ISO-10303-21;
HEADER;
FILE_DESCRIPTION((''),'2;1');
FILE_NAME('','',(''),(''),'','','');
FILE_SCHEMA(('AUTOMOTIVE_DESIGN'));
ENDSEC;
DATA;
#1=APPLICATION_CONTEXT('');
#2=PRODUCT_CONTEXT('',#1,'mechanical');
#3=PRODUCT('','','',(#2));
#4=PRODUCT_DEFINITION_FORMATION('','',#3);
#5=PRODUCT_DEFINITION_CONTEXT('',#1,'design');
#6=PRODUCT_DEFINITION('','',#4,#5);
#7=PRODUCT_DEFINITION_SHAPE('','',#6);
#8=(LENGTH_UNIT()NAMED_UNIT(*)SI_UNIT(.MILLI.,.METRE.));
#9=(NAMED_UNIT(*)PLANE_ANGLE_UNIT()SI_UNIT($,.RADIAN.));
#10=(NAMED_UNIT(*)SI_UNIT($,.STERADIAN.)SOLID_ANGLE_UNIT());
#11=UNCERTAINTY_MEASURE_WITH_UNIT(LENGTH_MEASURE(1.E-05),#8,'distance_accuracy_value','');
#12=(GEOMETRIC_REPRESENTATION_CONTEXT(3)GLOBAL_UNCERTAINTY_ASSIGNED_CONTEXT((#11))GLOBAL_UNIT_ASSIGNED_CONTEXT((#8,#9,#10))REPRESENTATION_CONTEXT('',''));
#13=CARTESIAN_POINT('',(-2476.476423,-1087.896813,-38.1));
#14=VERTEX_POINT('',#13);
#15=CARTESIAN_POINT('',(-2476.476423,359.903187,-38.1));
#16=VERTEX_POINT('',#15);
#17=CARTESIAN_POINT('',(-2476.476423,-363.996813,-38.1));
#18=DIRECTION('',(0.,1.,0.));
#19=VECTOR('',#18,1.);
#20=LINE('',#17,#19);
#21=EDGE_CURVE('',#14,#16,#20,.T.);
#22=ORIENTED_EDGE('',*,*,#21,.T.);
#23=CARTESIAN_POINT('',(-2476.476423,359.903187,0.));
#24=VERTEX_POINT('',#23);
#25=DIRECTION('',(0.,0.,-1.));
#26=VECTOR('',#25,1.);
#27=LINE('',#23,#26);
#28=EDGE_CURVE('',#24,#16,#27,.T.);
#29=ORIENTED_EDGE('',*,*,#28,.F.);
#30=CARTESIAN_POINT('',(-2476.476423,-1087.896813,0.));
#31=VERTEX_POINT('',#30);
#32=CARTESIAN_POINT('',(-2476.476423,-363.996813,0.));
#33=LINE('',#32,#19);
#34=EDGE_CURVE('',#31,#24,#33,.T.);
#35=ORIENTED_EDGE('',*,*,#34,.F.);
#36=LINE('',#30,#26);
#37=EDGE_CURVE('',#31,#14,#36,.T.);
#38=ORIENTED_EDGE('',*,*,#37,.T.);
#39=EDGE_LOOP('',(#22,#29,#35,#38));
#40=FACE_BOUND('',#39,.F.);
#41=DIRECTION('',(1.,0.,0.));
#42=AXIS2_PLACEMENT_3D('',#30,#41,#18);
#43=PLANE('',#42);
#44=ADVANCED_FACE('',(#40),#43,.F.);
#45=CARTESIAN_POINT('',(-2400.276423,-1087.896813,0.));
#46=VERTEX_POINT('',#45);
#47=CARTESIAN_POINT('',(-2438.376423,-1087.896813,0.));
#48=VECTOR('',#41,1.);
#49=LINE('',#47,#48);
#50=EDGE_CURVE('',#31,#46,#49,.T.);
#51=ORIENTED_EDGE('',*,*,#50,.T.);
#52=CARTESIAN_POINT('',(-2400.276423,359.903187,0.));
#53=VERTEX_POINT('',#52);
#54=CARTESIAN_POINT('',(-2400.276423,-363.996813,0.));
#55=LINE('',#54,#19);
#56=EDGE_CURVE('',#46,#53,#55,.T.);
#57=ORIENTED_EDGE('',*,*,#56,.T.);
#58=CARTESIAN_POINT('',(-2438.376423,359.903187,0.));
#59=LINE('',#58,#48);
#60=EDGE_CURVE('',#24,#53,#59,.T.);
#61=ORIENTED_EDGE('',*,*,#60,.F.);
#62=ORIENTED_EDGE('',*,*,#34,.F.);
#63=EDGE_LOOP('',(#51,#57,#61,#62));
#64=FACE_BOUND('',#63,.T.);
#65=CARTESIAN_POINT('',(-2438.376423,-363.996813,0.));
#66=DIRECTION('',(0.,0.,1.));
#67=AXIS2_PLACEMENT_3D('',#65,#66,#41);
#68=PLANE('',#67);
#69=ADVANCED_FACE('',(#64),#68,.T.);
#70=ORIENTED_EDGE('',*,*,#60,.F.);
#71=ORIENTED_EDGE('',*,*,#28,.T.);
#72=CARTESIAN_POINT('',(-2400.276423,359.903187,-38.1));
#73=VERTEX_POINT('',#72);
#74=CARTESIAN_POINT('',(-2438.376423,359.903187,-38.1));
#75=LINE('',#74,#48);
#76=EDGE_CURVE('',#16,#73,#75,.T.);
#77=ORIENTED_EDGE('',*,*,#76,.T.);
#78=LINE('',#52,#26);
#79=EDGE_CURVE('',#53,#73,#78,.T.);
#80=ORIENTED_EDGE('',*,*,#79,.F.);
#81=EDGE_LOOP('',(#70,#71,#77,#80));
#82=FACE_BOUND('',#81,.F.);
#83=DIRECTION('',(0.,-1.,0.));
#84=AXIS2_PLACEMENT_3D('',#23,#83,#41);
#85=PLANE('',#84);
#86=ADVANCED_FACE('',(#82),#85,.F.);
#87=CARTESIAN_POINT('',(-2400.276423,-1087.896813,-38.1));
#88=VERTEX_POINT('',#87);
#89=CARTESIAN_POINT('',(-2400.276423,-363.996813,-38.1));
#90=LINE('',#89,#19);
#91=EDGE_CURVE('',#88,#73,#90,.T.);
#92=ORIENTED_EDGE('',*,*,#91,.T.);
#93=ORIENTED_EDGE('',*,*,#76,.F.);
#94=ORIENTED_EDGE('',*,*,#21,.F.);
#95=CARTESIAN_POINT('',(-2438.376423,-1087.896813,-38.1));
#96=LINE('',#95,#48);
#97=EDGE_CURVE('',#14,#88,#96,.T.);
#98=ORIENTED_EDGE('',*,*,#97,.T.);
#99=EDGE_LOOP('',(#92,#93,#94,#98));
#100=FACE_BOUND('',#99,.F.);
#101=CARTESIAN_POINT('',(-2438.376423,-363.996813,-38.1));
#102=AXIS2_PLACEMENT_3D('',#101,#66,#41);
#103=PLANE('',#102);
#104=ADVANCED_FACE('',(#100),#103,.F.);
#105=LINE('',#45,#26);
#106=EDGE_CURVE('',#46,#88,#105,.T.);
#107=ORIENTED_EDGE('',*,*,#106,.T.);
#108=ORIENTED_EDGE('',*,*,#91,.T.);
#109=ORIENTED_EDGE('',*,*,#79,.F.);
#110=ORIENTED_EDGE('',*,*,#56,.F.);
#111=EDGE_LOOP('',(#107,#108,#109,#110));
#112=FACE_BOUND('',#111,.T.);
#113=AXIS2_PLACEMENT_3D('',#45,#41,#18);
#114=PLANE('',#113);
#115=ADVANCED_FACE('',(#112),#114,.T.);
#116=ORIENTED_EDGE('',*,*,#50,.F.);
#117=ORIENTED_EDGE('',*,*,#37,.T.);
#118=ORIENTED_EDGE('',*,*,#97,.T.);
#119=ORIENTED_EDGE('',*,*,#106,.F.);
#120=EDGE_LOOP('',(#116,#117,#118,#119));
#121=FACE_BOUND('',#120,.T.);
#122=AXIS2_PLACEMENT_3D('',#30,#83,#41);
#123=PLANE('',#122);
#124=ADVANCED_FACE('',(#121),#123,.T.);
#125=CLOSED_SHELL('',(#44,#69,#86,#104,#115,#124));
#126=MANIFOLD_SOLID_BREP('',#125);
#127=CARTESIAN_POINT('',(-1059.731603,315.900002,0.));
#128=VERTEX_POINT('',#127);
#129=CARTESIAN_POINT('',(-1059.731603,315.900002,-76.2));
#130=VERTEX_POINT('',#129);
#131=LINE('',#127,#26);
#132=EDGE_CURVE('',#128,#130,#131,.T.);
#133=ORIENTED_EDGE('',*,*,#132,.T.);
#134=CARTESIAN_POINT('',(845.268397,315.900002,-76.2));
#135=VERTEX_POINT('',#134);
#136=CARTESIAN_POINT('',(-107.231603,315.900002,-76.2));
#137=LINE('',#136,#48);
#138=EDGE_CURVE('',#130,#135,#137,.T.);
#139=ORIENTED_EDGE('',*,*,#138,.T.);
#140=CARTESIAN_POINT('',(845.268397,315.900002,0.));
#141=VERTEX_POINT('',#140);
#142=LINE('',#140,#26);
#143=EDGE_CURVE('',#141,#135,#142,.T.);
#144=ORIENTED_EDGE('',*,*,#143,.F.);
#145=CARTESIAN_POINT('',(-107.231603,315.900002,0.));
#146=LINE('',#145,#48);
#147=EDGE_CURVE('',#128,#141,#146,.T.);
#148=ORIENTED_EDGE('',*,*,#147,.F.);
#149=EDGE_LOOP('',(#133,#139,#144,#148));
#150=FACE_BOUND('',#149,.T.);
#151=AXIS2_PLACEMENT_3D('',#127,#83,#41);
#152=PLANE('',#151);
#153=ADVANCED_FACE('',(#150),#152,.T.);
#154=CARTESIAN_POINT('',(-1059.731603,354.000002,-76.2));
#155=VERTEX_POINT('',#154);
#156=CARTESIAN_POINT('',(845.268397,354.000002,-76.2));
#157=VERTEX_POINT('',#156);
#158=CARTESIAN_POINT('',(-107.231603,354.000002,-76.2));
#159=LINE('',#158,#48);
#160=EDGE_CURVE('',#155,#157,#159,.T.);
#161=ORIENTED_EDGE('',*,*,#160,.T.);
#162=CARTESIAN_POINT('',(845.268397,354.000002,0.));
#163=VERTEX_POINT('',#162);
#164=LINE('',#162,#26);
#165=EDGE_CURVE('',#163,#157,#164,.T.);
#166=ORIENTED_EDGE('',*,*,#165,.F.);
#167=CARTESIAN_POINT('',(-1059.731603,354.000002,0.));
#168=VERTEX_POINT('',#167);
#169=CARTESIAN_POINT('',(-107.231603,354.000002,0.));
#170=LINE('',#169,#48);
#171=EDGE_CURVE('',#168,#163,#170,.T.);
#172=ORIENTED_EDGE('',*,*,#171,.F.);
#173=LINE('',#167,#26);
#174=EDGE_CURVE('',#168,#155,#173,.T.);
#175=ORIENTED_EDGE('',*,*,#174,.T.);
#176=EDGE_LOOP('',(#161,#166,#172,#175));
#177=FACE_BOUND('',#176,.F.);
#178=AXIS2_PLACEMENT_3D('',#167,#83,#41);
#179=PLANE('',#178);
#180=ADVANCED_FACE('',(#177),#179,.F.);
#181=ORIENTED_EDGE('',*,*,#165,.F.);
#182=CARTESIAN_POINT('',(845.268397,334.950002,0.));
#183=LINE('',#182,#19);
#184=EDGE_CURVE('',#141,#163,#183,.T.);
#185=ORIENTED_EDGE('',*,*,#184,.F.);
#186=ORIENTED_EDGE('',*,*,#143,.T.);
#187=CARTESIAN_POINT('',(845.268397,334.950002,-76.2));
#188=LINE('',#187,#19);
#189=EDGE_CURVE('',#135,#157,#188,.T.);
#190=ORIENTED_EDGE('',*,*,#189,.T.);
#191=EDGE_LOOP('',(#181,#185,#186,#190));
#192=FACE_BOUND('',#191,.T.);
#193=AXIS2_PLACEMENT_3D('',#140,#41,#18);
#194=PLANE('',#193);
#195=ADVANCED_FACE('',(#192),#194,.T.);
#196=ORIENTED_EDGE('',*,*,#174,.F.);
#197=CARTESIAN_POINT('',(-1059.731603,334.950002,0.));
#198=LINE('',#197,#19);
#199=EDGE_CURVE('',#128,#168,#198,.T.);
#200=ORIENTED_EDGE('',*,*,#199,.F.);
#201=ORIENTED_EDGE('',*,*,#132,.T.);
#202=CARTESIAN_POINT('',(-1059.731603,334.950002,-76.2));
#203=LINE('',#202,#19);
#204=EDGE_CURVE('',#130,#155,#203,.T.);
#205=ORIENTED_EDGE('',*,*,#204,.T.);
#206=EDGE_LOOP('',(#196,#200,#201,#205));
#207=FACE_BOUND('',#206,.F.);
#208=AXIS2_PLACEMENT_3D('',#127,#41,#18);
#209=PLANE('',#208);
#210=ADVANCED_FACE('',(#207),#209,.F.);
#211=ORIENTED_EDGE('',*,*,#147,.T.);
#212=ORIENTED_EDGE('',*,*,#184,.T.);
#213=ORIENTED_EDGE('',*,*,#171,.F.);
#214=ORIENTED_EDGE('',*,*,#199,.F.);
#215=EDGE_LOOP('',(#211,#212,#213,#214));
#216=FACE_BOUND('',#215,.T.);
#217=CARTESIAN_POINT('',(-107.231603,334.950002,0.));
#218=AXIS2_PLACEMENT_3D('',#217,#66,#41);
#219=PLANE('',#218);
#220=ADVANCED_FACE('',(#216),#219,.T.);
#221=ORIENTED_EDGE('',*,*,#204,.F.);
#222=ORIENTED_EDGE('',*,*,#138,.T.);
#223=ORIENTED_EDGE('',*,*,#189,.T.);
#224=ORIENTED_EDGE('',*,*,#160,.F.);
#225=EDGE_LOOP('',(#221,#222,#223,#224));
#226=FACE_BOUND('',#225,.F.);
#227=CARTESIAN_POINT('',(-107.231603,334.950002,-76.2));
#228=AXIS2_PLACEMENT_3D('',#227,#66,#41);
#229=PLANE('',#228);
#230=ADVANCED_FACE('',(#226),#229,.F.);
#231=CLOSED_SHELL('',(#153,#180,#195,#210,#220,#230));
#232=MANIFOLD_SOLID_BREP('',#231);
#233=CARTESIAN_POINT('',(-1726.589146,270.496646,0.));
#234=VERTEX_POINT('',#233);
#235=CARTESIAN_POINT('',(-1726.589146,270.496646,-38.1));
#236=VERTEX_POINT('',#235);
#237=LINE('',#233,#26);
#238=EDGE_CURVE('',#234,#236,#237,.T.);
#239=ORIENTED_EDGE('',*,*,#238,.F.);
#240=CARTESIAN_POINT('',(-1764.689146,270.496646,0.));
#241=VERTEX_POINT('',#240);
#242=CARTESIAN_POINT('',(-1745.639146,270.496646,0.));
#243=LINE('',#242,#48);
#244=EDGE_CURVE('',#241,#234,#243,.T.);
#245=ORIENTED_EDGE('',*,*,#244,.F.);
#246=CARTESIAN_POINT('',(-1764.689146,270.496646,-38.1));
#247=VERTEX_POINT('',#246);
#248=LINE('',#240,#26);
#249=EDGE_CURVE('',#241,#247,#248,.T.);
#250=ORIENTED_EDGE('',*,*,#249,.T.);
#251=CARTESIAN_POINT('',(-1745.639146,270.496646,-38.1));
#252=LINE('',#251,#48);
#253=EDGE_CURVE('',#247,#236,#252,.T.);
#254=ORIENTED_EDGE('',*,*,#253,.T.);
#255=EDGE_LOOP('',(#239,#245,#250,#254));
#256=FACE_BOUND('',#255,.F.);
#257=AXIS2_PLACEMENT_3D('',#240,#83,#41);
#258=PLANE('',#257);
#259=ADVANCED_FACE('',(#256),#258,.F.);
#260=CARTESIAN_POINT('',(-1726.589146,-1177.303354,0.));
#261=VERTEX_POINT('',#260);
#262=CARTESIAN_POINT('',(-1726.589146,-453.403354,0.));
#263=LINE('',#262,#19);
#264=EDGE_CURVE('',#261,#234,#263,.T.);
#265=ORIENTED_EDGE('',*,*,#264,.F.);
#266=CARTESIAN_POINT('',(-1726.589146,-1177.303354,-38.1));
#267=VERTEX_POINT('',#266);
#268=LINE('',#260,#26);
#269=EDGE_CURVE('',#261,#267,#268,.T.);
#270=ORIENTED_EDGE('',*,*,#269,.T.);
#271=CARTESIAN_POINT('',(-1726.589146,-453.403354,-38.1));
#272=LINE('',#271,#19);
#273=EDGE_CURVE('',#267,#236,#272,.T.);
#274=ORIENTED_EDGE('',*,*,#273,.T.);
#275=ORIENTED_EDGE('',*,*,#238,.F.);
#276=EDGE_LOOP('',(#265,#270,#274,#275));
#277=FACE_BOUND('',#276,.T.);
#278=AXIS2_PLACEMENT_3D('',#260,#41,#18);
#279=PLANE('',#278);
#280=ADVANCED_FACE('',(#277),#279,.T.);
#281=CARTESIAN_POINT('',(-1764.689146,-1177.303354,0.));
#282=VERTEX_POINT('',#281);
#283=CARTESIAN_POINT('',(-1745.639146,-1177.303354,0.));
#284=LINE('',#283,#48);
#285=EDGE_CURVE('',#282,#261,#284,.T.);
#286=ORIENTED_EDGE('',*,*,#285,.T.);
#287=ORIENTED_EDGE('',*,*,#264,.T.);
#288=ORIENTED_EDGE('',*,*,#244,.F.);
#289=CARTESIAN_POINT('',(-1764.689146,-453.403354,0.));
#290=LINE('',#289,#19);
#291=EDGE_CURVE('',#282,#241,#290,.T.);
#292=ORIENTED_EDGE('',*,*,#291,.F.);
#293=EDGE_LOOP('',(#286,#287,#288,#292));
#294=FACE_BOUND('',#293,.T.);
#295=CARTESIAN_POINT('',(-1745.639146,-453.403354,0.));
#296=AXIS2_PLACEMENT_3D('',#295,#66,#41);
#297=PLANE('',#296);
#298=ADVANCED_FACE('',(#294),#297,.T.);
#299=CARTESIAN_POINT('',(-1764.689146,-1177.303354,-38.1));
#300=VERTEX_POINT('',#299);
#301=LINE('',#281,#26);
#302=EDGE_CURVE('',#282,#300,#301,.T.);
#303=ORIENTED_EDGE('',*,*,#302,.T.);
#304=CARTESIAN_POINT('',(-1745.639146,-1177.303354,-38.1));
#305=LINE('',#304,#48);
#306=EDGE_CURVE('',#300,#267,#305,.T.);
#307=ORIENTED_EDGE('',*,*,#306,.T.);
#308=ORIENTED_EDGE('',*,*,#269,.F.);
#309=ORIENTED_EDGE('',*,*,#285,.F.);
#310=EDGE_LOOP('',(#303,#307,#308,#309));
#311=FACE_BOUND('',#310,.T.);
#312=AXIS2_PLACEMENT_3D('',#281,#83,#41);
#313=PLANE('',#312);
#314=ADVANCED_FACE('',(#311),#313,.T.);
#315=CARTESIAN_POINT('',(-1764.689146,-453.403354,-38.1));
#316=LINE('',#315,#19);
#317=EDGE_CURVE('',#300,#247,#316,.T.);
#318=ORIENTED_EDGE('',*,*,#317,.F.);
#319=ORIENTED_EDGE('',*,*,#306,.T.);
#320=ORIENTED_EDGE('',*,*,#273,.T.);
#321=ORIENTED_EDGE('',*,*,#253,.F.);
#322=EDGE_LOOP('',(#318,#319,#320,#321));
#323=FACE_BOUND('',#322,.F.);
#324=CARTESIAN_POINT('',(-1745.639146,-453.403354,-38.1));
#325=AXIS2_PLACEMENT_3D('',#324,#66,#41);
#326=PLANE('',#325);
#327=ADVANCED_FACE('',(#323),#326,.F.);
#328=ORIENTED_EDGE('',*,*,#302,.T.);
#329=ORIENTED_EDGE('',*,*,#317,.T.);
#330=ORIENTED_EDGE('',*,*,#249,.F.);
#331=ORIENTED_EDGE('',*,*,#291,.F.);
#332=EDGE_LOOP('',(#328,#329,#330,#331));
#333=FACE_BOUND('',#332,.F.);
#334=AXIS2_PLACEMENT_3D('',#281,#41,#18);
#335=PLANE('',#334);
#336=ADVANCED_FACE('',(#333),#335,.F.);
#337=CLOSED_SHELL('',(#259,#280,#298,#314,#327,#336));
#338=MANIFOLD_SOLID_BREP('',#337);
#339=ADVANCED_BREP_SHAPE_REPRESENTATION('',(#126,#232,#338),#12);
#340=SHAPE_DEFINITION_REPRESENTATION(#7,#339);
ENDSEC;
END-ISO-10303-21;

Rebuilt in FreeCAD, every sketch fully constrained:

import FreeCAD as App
import Part
import Sketcher
from FreeCAD import Vector
Q = App.Units.Quantity


def add_polygon(sketch, points):
    """Adds a closed chain of lines whose ends are joined by coincident constraints."""
    first, n = sketch.GeometryCount, len(points)
    for a, b in zip(points, points[1:] + points[:1]):
        sketch.addGeometry(Part.LineSegment(App.Vector(*a, 0), App.Vector(*b, 0)), False)
    for i in range(n):
        sketch.addConstraint(Sketcher.Constraint("Coincident", first + i, 2, first + (i + 1) % n, 1))

doc = App.newDocument("Part")
params = doc.addObject("Spreadsheet::Sheet", "Params")
for row, (alias, value) in enumerate([
    ("sketch1_width", "75 in"),
    ("sketch1_height", "1.5 in"),
    ("pad1_length", "3 in"),
    ("sketch2_width", "3 in"),
    ("sketch2_height", "57 in"),
    ("pad2_length", "1.5 in"),
    ("sketch3_height", "57 in"),
    ("sketch3_width", "1.5 in"),
    ("pad3_length", "1.5 in"),
], start=1):
    params.set(f"A{row}", alias)
    params.set(f"B{row}", "=" + value)
    params.setAlias(f"B{row}", alias)

body = doc.addObject("PartDesign::Body", "Body")

sketch1 = body.newObject("Sketcher::SketchObject", "Sketch")
sketch1.AttachmentSupport = (doc.getObject("XY_Plane"), [""])
sketch1.MapMode = "FlatFace"
add_polygon(sketch1, [(-1060, 354), (-1060, 316), (845, 316), (845, 354)])
sketch1.addConstraint(Sketcher.Constraint("Vertical", 0))
sketch1.addConstraint(Sketcher.Constraint("Horizontal", 1))
sketch1.addConstraint(Sketcher.Constraint("Vertical", 2))
sketch1.addConstraint(Sketcher.Constraint("Horizontal", 3))
sketch1.addConstraint(Sketcher.Constraint("DistanceX", 1, 1, 1, 2, Q("75 in")))
sketch1.addConstraint(Sketcher.Constraint("DistanceY", 0, 2, 0, 1, Q("1.5 in")))
sketch1.addConstraint(Sketcher.Constraint("DistanceY", -1, 1, 0, 2, 315.900002))
sketch1.addConstraint(Sketcher.Constraint("DistanceX", 0, 2, -1, 1, 1059.731603))
sketch1.setExpression("Constraints[8]", "Params.sketch1_width")
sketch1.setExpression("Constraints[9]", "Params.sketch1_height")
pad1 = body.newObject("PartDesign::Pad", "Pad")
pad1.Profile = sketch1
pad1.setExpression("Length", "Params.pad1_length")
pad1.Reversed = True
body2 = doc.addObject("PartDesign::Body", "Body001")

sketch2 = body2.newObject("Sketcher::SketchObject", "Sketch001")
sketch2.AttachmentSupport = (doc.getObject("XY_Plane001"), [""])
sketch2.MapMode = "FlatFace"
add_polygon(sketch2, [(-2476, 360), (-2476, -1088), (-2400, -1088), (-2400, 360)])
sketch2.addConstraint(Sketcher.Constraint("Vertical", 0))
sketch2.addConstraint(Sketcher.Constraint("Horizontal", 1))
sketch2.addConstraint(Sketcher.Constraint("Vertical", 2))
sketch2.addConstraint(Sketcher.Constraint("Horizontal", 3))
sketch2.addConstraint(Sketcher.Constraint("DistanceX", 1, 1, 1, 2, Q("3 in")))
sketch2.addConstraint(Sketcher.Constraint("DistanceY", 0, 2, 0, 1, Q("57 in")))
sketch2.addConstraint(Sketcher.Constraint("DistanceX", 0, 2, -1, 1, 2476.476423))
sketch2.addConstraint(Sketcher.Constraint("DistanceY", 0, 2, -1, 1, 1087.896813))
sketch2.setExpression("Constraints[8]", "Params.sketch2_width")
sketch2.setExpression("Constraints[9]", "Params.sketch2_height")
pad2 = body2.newObject("PartDesign::Pad", "Pad001")
pad2.Profile = sketch2
pad2.setExpression("Length", "Params.pad2_length")
pad2.Reversed = True
body3 = doc.addObject("PartDesign::Body", "Body002")

sketch3 = body3.newObject("Sketcher::SketchObject", "Sketch002")
sketch3.AttachmentSupport = (doc.getObject("XY_Plane002"), [""])
sketch3.MapMode = "FlatFace"
add_polygon(sketch3, [(-1765, 270), (-1765, -1177), (-1727, -1177), (-1727, 270)])
sketch3.addConstraint(Sketcher.Constraint("Vertical", 0))
sketch3.addConstraint(Sketcher.Constraint("Horizontal", 1))
sketch3.addConstraint(Sketcher.Constraint("Vertical", 2))
sketch3.addConstraint(Sketcher.Constraint("Horizontal", 3))
sketch3.addConstraint(Sketcher.Constraint("DistanceY", 0, 2, 0, 1, Q("57 in")))
sketch3.addConstraint(Sketcher.Constraint("DistanceX", 1, 1, 1, 2, Q("1.5 in")))
sketch3.addConstraint(Sketcher.Constraint("DistanceX", 0, 2, -1, 1, 1764.689146))
sketch3.addConstraint(Sketcher.Constraint("DistanceY", 0, 2, -1, 1, 1177.303354))
sketch3.setExpression("Constraints[8]", "Params.sketch3_height")
sketch3.setExpression("Constraints[9]", "Params.sketch3_width")
pad3 = body3.newObject("PartDesign::Pad", "Pad002")
pad3.Profile = sketch3
pad3.setExpression("Length", "Params.pad3_length")
pad3.Reversed = True

doc.recompute()
